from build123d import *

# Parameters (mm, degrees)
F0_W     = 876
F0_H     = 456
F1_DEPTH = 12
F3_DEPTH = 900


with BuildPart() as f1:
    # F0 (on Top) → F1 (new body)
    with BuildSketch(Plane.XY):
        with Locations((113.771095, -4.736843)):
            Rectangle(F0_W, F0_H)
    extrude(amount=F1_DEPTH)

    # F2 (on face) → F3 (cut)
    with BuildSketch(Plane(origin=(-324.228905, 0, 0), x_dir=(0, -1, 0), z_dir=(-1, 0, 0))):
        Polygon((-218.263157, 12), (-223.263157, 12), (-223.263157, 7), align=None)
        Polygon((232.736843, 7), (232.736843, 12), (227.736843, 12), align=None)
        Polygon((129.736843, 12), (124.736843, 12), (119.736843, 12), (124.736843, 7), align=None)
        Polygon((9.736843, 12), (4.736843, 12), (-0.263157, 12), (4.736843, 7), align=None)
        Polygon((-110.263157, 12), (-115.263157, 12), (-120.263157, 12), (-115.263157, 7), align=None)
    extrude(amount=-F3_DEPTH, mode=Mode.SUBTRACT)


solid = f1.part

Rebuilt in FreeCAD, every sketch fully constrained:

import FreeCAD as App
import Part
import Sketcher
Q = App.Units.Quantity

doc = App.newDocument("Part")
body = doc.addObject("PartDesign::Body", "Body")

sketch1 = doc.addObject("Sketcher::SketchObject", "Sketch")
body.addObject(sketch1)
sketch1.AttachmentSupport = (doc.XY_Plane, [""])
sketch1.MapMode = "FlatFace"
sketch1.addGeometry(Part.LineSegment(App.Vector(-324, 223, 0), App.Vector(-324, -233, 0)), False)
sketch1.addGeometry(Part.LineSegment(App.Vector(-324, -233, 0), App.Vector(552, -233, 0)), False)
sketch1.addGeometry(Part.LineSegment(App.Vector(552, -233, 0), App.Vector(552, 223, 0)), False)
sketch1.addGeometry(Part.LineSegment(App.Vector(552, 223, 0), App.Vector(-324, 223, 0)), False)
sketch1.addConstraint(Sketcher.Constraint("Coincident", 0, 2, 1, 1))
sketch1.addConstraint(Sketcher.Constraint("Coincident", 1, 2, 2, 1))
sketch1.addConstraint(Sketcher.Constraint("Coincident", 2, 2, 3, 1))
sketch1.addConstraint(Sketcher.Constraint("Coincident", 3, 2, 0, 1))
sketch1.addConstraint(Sketcher.Constraint("Vertical", 0))
sketch1.addConstraint(Sketcher.Constraint("Horizontal", 1))
sketch1.addConstraint(Sketcher.Constraint("Vertical", 2))
sketch1.addConstraint(Sketcher.Constraint("Horizontal", 3))
sketch1.addConstraint(Sketcher.Constraint("DistanceX", 1, 1, 1, 2, Q("876 mm")))
sketch1.addConstraint(Sketcher.Constraint("DistanceY", 0, 2, 0, 1, Q("456 mm")))
sketch1.addConstraint(Sketcher.Constraint("DistanceX", 0, 2, -1, 1, Q("324.228905 mm")))
sketch1.addConstraint(Sketcher.Constraint("DistanceY", 0, 2, -1, 1, Q("232.736843 mm")))
pad1 = doc.addObject("PartDesign::Pad", "Pad")
body.addObject(pad1)
pad1.Profile = sketch1
pad1.Length = 12

sketch2 = doc.addObject("Sketcher::SketchObject", "Sketch001")
body.addObject(sketch2)
sketch2.AttachmentSupport = (doc.YZ_Plane, [""])
sketch2.MapMode = "FlatFace"
sketch2.AttachmentOffset = App.Placement(App.Vector(0, 0, -324.228905), App.Rotation())
sketch2.addGeometry(Part.LineSegment(App.Vector(218, 12, 0), App.Vector(223, 12, 0)), False)
sketch2.addGeometry(Part.LineSegment(App.Vector(223, 12, 0), App.Vector(223, 7, 0)), False)
sketch2.addGeometry(Part.LineSegment(App.Vector(223, 7, 0), App.Vector(218, 12, 0)), False)
sketch2.addGeometry(Part.LineSegment(App.Vector(-233, 7, 0), App.Vector(-233, 12, 0)), False)
sketch2.addGeometry(Part.LineSegment(App.Vector(-233, 12, 0), App.Vector(-228, 12, 0)), False)
sketch2.addGeometry(Part.LineSegment(App.Vector(-228, 12, 0), App.Vector(-233, 7, 0)), False)
sketch2.addGeometry(Part.LineSegment(App.Vector(-130, 12, 0), App.Vector(-120, 12, 0)), False)
sketch2.addGeometry(Part.LineSegment(App.Vector(-120, 12, 0), App.Vector(-125, 7, 0)), False)
sketch2.addGeometry(Part.LineSegment(App.Vector(-125, 7, 0), App.Vector(-130, 12, 0)), False)
sketch2.addGeometry(Part.LineSegment(App.Vector(-10, 12, 0), App.Vector(0, 12, 0)), False)
sketch2.addGeometry(Part.LineSegment(App.Vector(0, 12, 0), App.Vector(-5, 7, 0)), False)
sketch2.addGeometry(Part.LineSegment(App.Vector(-5, 7, 0), App.Vector(-10, 12, 0)), False)
sketch2.addGeometry(Part.LineSegment(App.Vector(110, 12, 0), App.Vector(120, 12, 0)), False)
sketch2.addGeometry(Part.LineSegment(App.Vector(120, 12, 0), App.Vector(115, 7, 0)), False)
sketch2.addGeometry(Part.LineSegment(App.Vector(115, 7, 0), App.Vector(110, 12, 0)), False)
sketch2.addConstraint(Sketcher.Constraint("Coincident", 0, 2, 1, 1))
sketch2.addConstraint(Sketcher.Constraint("Coincident", 1, 2, 2, 1))
sketch2.addConstraint(Sketcher.Constraint("Coincident", 2, 2, 0, 1))
sketch2.addConstraint(Sketcher.Constraint("Coincident", 3, 2, 4, 1))
sketch2.addConstraint(Sketcher.Constraint("Coincident", 4, 2, 5, 1))
sketch2.addConstraint(Sketcher.Constraint("Coincident", 5, 2, 3, 1))
sketch2.addConstraint(Sketcher.Constraint("Coincident", 6, 2, 7, 1))
sketch2.addConstraint(Sketcher.Constraint("Coincident", 7, 2, 8, 1))
sketch2.addConstraint(Sketcher.Constraint("Coincident", 8, 2, 6, 1))
sketch2.addConstraint(Sketcher.Constraint("Coincident", 9, 2, 10, 1))
sketch2.addConstraint(Sketcher.Constraint("Coincident", 10, 2, 11, 1))
sketch2.addConstraint(Sketcher.Constraint("Coincident", 11, 2, 9, 1))
sketch2.addConstraint(Sketcher.Constraint("Coincident", 12, 2, 13, 1))
sketch2.addConstraint(Sketcher.Constraint("Coincident", 13, 2, 14, 1))
sketch2.addConstraint(Sketcher.Constraint("Coincident", 14, 2, 12, 1))
sketch2.addConstraint(Sketcher.Constraint("Horizontal", 0))
sketch2.addConstraint(Sketcher.Constraint("Vertical", 1))
sketch2.addConstraint(Sketcher.Constraint("Vertical", 3))
sketch2.addConstraint(Sketcher.Constraint("Horizontal", 4))
sketch2.addConstraint(Sketcher.Constraint("Horizontal", 6))
sketch2.addConstraint(Sketcher.Constraint("Horizontal", 9))
sketch2.addConstraint(Sketcher.Constraint("Horizontal", 12))
sketch2.addConstraint(Sketcher.Constraint("Perpendicular", 2, 5))
sketch2.addConstraint(Sketcher.Constraint("Parallel", 5, 7))
sketch2.addConstraint(Sketcher.Constraint("Perpendicular", 7, 8))
sketch2.addConstraint(Sketcher.Constraint("Perpendicular", 8, 10))
sketch2.addConstraint(Sketcher.Constraint("Perpendicular", 10, 11))
sketch2.addConstraint(Sketcher.Constraint("Perpendicular", 11, 13))
sketch2.addConstraint(Sketcher.Constraint("Perpendicular", 13, 14))
sketch2.addConstraint(Sketcher.Constraint("Horizontal", 2, 2, 3, 2))
sketch2.addConstraint(Sketcher.Constraint("Horizontal", 1, 2, 5, 2))
sketch2.addConstraint(Sketcher.Constraint("Horizontal", 4, 2, 6, 2))
sketch2.addConstraint(Sketcher.Constraint("Horizontal", 5, 2, 7, 2))
sketch2.addConstraint(Sketcher.Constraint("Horizontal", 8, 2, 9, 2))
sketch2.addConstraint(Sketcher.Constraint("Horizontal", 7, 2, 10, 2))
sketch2.addConstraint(Sketcher.Constraint("Horizontal", 11, 2, 12, 2))
sketch2.addConstraint(Sketcher.Constraint("Horizontal", 10, 2, 13, 2))
sketch2.addConstraint(Sketcher.Constraint("Equal", 0, 4))
sketch2.addConstraint(Sketcher.Constraint("DistanceX", 0, 1, 0, 2, Q("5 mm")))
sketch2.addConstraint(Sketcher.Constraint("DistanceY", -1, 1, 0, 2, Q("12 mm")))
sketch2.addConstraint(Sketcher.Constraint("DistanceX", 3, 2, 2, 2, Q("451 mm")))
sketch2.addConstraint(Sketcher.Constraint("DistanceX", 4, 2, 6, 2, Q("108 mm")))
sketch2.addConstraint(Sketcher.Constraint("DistanceX", 6, 2, 9, 2, Q("120 mm")))
sketch2.addConstraint(Sketcher.Constraint("DistanceX", 12, 2, 2, 2, Q("98 mm")))
sketch2.addConstraint(Sketcher.Constraint("DistanceX", -1, 1, 0, 2, Q("223.263157 mm")))
pocket1 = doc.addObject("PartDesign::Pocket", "Pocket")
body.addObject(pocket1)
pocket1.Profile = sketch2
pocket1.Length = 900
pocket1.Reversed = True

doc.recompute()
